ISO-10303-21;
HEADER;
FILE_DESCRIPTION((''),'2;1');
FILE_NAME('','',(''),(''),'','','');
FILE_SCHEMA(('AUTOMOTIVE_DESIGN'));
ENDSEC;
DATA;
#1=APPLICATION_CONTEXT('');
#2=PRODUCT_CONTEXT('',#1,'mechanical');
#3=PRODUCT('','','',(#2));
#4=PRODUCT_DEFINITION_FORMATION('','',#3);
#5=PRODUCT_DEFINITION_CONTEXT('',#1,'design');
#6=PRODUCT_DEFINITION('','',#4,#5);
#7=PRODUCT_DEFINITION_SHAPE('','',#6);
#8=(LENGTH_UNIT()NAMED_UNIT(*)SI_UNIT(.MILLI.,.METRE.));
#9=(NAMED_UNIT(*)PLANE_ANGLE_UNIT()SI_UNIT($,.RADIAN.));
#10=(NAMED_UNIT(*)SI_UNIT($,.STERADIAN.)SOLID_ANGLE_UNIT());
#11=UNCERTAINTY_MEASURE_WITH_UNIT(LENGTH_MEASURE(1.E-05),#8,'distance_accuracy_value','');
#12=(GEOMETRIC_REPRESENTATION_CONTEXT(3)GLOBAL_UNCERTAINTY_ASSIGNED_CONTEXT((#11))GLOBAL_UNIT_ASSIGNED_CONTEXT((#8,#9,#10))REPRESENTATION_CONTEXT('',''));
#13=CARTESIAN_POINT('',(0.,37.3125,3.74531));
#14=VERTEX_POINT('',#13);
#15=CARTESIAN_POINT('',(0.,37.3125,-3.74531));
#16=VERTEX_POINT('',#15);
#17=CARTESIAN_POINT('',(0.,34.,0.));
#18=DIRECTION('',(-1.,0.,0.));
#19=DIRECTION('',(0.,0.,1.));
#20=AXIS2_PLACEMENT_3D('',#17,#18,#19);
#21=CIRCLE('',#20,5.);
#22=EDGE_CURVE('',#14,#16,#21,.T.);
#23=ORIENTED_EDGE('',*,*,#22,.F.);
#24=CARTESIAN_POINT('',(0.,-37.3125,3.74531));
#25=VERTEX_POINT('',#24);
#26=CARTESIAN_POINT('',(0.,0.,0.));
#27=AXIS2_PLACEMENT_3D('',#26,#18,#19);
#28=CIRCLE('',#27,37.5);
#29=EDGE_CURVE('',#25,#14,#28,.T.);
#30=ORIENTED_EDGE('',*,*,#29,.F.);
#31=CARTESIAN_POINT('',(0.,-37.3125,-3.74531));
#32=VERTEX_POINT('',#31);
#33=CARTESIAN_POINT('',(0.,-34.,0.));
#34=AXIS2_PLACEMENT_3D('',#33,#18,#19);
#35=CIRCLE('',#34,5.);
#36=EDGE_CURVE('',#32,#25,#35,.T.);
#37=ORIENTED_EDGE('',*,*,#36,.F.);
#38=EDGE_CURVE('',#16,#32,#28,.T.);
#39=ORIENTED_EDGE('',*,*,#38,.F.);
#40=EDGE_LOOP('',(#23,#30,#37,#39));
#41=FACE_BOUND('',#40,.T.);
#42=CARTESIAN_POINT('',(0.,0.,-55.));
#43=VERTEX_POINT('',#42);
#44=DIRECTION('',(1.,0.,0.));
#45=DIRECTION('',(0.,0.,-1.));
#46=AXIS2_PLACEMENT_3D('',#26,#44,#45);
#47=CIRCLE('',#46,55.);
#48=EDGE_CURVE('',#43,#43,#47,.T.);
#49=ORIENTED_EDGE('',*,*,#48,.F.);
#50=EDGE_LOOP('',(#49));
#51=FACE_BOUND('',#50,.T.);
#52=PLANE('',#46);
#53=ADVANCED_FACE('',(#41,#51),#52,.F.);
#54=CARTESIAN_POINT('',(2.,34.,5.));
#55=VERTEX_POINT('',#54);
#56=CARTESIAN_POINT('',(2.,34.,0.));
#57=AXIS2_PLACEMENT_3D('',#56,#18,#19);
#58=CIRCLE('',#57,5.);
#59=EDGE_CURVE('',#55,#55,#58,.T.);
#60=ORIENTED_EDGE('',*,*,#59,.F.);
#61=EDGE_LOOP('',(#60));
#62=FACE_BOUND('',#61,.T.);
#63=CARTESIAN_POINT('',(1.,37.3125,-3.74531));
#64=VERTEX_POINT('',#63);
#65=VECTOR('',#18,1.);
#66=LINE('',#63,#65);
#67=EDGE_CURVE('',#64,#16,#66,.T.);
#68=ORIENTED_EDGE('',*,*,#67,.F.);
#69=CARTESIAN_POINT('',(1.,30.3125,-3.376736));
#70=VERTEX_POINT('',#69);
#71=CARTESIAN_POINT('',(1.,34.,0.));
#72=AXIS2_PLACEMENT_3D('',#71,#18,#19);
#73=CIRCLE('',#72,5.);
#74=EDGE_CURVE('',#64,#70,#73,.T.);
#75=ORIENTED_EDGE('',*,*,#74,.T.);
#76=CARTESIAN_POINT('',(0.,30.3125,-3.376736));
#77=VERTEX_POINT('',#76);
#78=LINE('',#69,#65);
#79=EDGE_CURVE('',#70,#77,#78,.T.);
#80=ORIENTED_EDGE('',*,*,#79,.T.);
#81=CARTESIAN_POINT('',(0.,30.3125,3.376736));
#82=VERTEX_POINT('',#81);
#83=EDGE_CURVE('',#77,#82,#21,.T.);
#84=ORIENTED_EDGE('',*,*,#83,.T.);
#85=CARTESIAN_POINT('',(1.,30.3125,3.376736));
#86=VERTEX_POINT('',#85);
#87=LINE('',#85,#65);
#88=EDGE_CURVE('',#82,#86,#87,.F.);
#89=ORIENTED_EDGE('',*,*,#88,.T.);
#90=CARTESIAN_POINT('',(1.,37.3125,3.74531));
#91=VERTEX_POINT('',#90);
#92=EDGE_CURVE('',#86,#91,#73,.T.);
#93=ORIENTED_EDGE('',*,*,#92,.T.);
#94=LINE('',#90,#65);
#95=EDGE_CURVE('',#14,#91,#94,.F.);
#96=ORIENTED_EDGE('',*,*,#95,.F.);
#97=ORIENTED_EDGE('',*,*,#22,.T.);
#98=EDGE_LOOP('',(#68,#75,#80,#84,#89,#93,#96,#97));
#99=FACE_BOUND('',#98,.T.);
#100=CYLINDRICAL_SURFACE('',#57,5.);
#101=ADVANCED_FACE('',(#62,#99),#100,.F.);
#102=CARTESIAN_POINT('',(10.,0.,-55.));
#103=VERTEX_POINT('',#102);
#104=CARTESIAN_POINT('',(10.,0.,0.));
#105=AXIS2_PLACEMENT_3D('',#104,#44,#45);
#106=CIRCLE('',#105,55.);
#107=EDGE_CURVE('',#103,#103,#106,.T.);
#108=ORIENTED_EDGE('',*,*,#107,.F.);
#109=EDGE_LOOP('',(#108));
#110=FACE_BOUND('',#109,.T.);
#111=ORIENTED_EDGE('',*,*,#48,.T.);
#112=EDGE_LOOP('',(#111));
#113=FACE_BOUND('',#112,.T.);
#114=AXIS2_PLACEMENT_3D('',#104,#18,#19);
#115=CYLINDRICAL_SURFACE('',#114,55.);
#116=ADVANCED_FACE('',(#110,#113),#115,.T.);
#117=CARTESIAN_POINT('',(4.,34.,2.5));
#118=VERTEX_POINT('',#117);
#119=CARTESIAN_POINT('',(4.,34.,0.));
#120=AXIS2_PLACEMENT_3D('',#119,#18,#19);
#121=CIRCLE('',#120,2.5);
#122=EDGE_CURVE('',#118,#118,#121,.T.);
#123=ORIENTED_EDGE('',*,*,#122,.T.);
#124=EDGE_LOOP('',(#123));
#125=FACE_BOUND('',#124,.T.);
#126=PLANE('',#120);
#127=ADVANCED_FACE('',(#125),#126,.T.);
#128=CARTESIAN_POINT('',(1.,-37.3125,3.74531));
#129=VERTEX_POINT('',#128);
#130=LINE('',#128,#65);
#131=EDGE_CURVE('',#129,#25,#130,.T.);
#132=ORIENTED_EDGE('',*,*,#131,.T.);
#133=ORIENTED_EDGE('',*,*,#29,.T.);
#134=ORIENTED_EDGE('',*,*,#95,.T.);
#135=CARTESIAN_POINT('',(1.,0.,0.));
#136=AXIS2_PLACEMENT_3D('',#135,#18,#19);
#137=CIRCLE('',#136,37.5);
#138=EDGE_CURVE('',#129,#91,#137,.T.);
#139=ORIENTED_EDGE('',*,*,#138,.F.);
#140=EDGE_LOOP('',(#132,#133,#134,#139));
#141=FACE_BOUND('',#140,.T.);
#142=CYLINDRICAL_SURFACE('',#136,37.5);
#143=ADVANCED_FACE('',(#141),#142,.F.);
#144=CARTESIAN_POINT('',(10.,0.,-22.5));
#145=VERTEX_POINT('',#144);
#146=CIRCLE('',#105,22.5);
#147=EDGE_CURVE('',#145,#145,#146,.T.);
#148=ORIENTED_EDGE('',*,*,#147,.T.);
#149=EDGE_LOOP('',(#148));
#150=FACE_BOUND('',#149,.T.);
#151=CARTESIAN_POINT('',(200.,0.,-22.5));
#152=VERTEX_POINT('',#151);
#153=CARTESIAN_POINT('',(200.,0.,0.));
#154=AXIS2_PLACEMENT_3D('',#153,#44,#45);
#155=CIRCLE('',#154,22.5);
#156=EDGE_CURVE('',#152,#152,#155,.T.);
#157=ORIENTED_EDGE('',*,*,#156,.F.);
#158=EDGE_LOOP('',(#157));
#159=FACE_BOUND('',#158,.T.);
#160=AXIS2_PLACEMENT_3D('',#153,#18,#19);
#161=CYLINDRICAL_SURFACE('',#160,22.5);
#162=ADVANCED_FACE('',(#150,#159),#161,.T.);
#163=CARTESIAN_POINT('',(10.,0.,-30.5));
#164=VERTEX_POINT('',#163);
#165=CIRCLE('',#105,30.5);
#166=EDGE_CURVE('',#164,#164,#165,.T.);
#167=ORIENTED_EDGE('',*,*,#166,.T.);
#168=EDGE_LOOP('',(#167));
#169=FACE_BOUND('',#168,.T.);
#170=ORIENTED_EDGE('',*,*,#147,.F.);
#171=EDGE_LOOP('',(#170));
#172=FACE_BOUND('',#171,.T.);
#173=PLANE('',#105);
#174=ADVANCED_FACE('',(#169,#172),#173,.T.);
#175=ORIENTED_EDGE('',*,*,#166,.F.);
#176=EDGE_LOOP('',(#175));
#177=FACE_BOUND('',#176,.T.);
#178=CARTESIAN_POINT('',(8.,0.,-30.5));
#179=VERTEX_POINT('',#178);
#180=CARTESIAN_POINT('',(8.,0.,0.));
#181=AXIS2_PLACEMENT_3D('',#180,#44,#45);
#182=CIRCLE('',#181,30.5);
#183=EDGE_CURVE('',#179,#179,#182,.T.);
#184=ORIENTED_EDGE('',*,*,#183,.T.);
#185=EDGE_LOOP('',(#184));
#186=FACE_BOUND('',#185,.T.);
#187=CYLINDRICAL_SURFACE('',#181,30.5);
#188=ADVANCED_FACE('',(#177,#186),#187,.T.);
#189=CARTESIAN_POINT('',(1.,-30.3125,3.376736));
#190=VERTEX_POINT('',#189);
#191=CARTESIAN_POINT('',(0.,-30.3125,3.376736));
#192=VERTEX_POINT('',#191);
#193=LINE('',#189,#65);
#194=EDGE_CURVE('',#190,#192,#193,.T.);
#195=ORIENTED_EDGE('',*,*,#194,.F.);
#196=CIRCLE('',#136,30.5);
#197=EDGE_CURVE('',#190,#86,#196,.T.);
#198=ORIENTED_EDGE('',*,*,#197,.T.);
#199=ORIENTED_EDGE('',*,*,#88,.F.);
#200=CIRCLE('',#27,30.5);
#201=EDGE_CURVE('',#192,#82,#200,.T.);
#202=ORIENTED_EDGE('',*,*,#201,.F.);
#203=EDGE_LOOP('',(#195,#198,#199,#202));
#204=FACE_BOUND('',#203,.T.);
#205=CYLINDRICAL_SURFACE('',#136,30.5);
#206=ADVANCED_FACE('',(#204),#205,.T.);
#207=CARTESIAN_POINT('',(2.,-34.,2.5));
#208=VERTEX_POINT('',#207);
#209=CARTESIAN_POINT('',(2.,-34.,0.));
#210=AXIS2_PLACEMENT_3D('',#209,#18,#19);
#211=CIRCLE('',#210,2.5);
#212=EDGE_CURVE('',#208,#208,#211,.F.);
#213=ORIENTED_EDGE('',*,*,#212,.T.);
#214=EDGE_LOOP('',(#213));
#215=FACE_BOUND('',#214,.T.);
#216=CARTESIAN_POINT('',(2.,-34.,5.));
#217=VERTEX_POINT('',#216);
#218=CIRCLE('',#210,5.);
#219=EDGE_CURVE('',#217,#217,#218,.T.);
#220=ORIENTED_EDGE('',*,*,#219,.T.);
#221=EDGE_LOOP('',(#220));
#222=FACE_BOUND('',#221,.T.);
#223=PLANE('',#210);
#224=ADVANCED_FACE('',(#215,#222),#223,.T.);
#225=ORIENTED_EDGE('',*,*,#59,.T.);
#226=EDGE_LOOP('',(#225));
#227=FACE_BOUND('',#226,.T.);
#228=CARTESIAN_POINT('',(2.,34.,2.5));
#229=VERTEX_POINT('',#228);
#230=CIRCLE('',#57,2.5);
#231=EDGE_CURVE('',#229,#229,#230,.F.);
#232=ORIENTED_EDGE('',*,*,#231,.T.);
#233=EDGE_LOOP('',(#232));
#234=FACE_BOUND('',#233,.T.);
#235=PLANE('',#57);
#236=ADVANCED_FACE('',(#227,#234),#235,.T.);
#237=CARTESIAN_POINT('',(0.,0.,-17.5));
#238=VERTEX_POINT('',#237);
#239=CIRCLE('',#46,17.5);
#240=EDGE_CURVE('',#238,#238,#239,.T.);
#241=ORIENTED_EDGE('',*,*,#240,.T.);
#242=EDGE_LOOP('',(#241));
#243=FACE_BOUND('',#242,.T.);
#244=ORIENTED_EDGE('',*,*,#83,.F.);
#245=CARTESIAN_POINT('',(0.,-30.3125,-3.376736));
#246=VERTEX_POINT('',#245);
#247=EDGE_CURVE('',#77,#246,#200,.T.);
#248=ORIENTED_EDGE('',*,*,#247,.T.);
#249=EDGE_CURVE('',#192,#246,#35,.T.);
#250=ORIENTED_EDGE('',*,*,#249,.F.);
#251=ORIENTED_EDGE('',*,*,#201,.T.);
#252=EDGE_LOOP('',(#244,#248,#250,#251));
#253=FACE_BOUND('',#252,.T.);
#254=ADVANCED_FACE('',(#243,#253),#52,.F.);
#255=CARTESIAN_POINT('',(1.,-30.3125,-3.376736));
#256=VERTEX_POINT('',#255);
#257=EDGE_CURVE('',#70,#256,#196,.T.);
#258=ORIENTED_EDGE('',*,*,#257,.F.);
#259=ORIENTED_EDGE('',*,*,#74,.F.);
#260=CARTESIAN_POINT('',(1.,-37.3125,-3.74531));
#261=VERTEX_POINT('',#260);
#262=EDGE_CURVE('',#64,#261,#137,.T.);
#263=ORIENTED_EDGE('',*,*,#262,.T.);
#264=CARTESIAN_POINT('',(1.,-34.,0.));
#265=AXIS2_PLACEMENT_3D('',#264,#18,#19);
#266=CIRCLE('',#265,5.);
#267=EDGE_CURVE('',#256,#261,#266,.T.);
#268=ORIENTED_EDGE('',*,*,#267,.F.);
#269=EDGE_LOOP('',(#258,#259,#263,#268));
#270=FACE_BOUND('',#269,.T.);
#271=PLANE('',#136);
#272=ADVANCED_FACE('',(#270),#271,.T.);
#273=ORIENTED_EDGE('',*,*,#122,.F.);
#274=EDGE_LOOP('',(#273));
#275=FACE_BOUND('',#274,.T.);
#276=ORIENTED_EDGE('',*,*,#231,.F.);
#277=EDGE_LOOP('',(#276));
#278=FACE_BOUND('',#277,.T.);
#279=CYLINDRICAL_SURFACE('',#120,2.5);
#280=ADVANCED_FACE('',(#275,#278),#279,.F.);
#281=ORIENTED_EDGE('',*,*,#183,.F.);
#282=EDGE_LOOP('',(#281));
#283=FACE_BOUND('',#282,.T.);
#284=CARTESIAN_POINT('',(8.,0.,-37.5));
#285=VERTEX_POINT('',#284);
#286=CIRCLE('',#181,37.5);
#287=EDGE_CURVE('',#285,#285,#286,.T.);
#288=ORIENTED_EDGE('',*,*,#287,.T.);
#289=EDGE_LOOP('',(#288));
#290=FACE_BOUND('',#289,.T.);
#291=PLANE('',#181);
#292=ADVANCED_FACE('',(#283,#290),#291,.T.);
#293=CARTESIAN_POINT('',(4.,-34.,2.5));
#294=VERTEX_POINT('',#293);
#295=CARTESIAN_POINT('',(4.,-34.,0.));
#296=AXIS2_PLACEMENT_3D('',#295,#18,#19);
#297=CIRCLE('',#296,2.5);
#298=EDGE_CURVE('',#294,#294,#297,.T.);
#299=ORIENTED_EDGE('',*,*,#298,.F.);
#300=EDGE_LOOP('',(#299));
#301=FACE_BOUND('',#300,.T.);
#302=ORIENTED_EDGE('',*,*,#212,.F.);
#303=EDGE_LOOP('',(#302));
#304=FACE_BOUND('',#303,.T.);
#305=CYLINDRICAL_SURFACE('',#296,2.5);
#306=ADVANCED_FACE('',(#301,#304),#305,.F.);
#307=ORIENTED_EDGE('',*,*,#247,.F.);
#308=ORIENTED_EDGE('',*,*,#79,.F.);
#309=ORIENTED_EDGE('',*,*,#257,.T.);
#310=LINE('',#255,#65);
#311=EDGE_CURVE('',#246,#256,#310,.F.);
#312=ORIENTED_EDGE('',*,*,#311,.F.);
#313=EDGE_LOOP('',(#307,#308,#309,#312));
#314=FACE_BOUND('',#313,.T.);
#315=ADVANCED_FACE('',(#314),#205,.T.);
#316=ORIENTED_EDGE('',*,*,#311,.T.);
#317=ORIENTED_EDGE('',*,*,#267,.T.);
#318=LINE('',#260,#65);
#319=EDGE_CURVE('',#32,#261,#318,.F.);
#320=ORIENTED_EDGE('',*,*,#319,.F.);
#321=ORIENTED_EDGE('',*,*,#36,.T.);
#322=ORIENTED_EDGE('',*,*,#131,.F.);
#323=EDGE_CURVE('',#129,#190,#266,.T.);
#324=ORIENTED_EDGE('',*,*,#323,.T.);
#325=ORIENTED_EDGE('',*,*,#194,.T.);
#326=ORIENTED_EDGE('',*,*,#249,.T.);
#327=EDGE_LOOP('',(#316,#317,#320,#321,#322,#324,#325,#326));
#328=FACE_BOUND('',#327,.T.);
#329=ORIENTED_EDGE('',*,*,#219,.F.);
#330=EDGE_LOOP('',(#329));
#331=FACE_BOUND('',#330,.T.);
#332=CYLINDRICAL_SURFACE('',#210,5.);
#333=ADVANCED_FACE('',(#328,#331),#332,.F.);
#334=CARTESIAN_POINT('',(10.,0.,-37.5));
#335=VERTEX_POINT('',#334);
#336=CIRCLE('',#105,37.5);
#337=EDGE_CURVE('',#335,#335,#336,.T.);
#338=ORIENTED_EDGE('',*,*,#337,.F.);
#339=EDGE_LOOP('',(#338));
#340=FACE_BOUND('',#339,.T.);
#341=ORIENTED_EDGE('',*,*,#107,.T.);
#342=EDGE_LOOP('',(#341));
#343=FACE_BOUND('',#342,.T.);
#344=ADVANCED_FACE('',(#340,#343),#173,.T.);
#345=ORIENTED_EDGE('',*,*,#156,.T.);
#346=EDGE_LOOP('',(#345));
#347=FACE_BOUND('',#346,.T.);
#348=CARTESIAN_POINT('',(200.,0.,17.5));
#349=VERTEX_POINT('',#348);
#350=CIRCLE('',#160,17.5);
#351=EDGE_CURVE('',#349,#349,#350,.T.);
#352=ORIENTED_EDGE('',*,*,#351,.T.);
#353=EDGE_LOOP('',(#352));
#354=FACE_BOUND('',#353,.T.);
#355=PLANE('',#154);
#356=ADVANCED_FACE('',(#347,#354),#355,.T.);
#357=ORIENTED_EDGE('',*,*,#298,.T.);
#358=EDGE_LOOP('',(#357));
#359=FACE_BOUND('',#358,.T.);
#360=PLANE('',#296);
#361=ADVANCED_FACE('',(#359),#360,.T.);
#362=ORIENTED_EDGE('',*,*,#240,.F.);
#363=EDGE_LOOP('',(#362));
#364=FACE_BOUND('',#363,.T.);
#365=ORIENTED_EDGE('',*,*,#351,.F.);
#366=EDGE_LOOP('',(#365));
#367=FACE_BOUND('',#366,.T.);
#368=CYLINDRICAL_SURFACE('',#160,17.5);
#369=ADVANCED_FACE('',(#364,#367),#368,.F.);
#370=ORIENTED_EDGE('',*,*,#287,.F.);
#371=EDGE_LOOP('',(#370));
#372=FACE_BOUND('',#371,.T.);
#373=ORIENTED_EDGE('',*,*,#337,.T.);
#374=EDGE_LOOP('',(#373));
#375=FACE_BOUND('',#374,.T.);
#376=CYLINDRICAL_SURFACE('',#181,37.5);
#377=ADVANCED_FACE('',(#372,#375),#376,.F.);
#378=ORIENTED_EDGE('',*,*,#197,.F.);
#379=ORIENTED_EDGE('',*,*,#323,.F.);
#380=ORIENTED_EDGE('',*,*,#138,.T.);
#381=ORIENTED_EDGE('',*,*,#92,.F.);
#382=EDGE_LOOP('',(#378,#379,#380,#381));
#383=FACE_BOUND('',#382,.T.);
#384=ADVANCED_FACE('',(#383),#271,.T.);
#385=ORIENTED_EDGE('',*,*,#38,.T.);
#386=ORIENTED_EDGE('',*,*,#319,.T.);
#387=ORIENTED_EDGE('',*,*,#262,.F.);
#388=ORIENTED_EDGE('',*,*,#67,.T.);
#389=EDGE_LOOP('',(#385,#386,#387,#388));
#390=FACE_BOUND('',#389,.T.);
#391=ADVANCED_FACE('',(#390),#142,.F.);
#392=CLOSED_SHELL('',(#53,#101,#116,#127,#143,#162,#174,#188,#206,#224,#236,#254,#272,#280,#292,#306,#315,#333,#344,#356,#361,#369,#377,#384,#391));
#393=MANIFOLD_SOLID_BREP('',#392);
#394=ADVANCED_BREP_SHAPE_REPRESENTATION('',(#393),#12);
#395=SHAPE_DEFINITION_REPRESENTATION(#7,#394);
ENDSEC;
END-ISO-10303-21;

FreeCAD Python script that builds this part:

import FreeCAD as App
import Part
import Sketcher
from FreeCAD import Vector

doc = App.newDocument("Part")
body = doc.addObject("PartDesign::Body", "Body")

# Sketch on YZ plane
sketch1 = doc.addObject("Sketcher::SketchObject", "Sketch")
body.addObject(sketch1)
sketch1.AttachmentSupport = (doc.YZ_Plane, [""])
sketch1.MapMode = "FlatFace"
sketch1.addGeometry(Part.Circle(Vector(0, 0, 0), Vector(0, 0, 1), 55), False)
sketch1.addConstraint([
    Sketcher.Constraint("Coincident", 0, 3, -1, 1),
    Sketcher.Constraint("Diameter", 0, 110.0),
])
pad1 = doc.addObject("PartDesign::Pad", "Pad")
body.addObject(pad1)
pad1.Profile = sketch1
pad1.Length = 10

# Sketch on YZ plane
sketch2 = doc.addObject("Sketcher::SketchObject", "Sketch001")
body.addObject(sketch2)
sketch2.AttachmentSupport = (doc.YZ_Plane, [""])
sketch2.MapMode = "FlatFace"
sketch2.AttachmentOffset = App.Placement(Vector(0, 0, 10), App.Rotation())
sketch2.addGeometry(Part.Circle(Vector(0, 0, 0), Vector(0, 0, 1), 22.5), False)
sketch2.addConstraint([
    Sketcher.Constraint("Coincident", 0, 3, -1, 1),
    Sketcher.Constraint("Diameter", 0, 45.0),
])
pad2 = doc.addObject("PartDesign::Pad", "Pad001")
body.addObject(pad2)
pad2.Profile = sketch2
pad2.Length = 190

# Sketch on YZ plane
sketch3 = doc.addObject("Sketcher::SketchObject", "Sketch002")
body.addObject(sketch3)
sketch3.AttachmentSupport = (doc.YZ_Plane, [""])
sketch3.MapMode = "FlatFace"
sketch3.addGeometry(Part.Circle(Vector(0, 0, 0), Vector(0, 0, 1), 17.5), False)
sketch3.addConstraint([
    Sketcher.Constraint("Coincident", 0, 3, -1, 1),
    Sketcher.Constraint("Diameter", 0, 35.0),
])
pocket1 = doc.addObject("PartDesign::Pocket", "Pocket")
body.addObject(pocket1)
pocket1.Profile = sketch3
pocket1.Type = "ThroughAll"
pocket1.Midplane = True

# Sketch on YZ plane
sketch4 = doc.addObject("Sketcher::SketchObject", "Sketch003")
body.addObject(sketch4)
sketch4.AttachmentSupport = (doc.YZ_Plane, [""])
sketch4.MapMode = "FlatFace"
sketch4.addGeometry([
    Part.Circle(Vector(0, 0, 0), Vector(0, 0, 1), 37.5),
    Part.Circle(Vector(0, 0, 0), Vector(0, 0, 1), 30.5),
], False)
sketch4.addConstraint([
    Sketcher.Constraint("Coincident", 0, 3, -1, 1),
    Sketcher.Constraint("Coincident", 1, 3, -1, 1),
    Sketcher.Constraint("Diameter", 0, 75.0),
    Sketcher.Constraint("Diameter", 1, 61.0),
])
pocket2 = doc.addObject("PartDesign::Pocket", "Pocket001")
body.addObject(pocket2)
pocket2.Profile = sketch4
pocket2.Length = 1
pocket2.Reversed = True

# Sketch on YZ plane
sketch5 = doc.addObject("Sketcher::SketchObject", "Sketch004")
body.addObject(sketch5)
sketch5.AttachmentSupport = (doc.YZ_Plane, [""])
sketch5.MapMode = "FlatFace"
sketch5.AttachmentOffset = App.Placement(Vector(0, 0, 10), App.Rotation())
sketch5.addGeometry([
    Part.Circle(Vector(0, 0, 0), Vector(0, 0, 1), 37.5),
    Part.Circle(Vector(0, 0, 0), Vector(0, 0, 1), 30.5),
], False)
sketch5.addConstraint([
    Sketcher.Constraint("Coincident", 0, 3, -1, 1),
    Sketcher.Constraint("Coincident", 1, 3, -1, 1),
    Sketcher.Constraint("Diameter", 0, 75.0),
    Sketcher.Constraint("Diameter", 1, 61.0),
])
pocket3 = doc.addObject("PartDesign::Pocket", "Pocket002")
body.addObject(pocket3)
pocket3.Profile = sketch5
pocket3.Length = 2

# Sketch on YZ plane
sketch6 = doc.addObject("Sketcher::SketchObject", "Sketch005")
body.addObject(sketch6)
sketch6.AttachmentSupport = (doc.YZ_Plane, [""])
sketch6.MapMode = "FlatFace"
sketch6.addGeometry([
    Part.Circle(Vector(34, 0, 0), Vector(0, 0, 1), 2.5),
    Part.Circle(Vector(-34, 0, 0), Vector(0, 0, 1), 2.5),
], False)
sketch6.addConstraint([
    Sketcher.Constraint("Equal", 0, 1),
    Sketcher.Constraint("Symmetric", 0, 3, 1, 3, -1, 1),
    Sketcher.Constraint("PointOnObject", 0, 3, -1),
    Sketcher.Constraint("Diameter", 0, 5.0),
    Sketcher.Constraint("DistanceX", -1, 1, 0, 3, 34.0),
])
pocket4 = doc.addObject("PartDesign::Pocket", "Pocket003")
body.addObject(pocket4)
pocket4.Profile = sketch6
pocket4.Length = 4
pocket4.Reversed = True

# Sketch on YZ plane
sketch7 = doc.addObject("Sketcher::SketchObject", "Sketch006")
body.addObject(sketch7)
sketch7.AttachmentSupport = (doc.YZ_Plane, [""])
sketch7.MapMode = "FlatFace"
sketch7.addGeometry([
    Part.Circle(Vector(-34, 0, 0), Vector(0, 0, 1), 5),
    Part.Circle(Vector(34, 0, 0), Vector(0, 0, 1), 5),
], False)
sketch7.addConstraint([
    Sketcher.Constraint("Equal", 0, 1),
    Sketcher.Constraint("Symmetric", 0, 3, 1, 3, -1, 1),
    Sketcher.Constraint("PointOnObject", 0, 3, -1),
    Sketcher.Constraint("Diameter", 0, 10.0),
    Sketcher.Constraint("DistanceX", 0, 3, -1, 1, 34.0),
])
pocket5 = doc.addObject("PartDesign::Pocket", "Pocket004")
body.addObject(pocket5)
pocket5.Profile = sketch7
pocket5.Length = 2
pocket5.Reversed = True

doc.recompute()
